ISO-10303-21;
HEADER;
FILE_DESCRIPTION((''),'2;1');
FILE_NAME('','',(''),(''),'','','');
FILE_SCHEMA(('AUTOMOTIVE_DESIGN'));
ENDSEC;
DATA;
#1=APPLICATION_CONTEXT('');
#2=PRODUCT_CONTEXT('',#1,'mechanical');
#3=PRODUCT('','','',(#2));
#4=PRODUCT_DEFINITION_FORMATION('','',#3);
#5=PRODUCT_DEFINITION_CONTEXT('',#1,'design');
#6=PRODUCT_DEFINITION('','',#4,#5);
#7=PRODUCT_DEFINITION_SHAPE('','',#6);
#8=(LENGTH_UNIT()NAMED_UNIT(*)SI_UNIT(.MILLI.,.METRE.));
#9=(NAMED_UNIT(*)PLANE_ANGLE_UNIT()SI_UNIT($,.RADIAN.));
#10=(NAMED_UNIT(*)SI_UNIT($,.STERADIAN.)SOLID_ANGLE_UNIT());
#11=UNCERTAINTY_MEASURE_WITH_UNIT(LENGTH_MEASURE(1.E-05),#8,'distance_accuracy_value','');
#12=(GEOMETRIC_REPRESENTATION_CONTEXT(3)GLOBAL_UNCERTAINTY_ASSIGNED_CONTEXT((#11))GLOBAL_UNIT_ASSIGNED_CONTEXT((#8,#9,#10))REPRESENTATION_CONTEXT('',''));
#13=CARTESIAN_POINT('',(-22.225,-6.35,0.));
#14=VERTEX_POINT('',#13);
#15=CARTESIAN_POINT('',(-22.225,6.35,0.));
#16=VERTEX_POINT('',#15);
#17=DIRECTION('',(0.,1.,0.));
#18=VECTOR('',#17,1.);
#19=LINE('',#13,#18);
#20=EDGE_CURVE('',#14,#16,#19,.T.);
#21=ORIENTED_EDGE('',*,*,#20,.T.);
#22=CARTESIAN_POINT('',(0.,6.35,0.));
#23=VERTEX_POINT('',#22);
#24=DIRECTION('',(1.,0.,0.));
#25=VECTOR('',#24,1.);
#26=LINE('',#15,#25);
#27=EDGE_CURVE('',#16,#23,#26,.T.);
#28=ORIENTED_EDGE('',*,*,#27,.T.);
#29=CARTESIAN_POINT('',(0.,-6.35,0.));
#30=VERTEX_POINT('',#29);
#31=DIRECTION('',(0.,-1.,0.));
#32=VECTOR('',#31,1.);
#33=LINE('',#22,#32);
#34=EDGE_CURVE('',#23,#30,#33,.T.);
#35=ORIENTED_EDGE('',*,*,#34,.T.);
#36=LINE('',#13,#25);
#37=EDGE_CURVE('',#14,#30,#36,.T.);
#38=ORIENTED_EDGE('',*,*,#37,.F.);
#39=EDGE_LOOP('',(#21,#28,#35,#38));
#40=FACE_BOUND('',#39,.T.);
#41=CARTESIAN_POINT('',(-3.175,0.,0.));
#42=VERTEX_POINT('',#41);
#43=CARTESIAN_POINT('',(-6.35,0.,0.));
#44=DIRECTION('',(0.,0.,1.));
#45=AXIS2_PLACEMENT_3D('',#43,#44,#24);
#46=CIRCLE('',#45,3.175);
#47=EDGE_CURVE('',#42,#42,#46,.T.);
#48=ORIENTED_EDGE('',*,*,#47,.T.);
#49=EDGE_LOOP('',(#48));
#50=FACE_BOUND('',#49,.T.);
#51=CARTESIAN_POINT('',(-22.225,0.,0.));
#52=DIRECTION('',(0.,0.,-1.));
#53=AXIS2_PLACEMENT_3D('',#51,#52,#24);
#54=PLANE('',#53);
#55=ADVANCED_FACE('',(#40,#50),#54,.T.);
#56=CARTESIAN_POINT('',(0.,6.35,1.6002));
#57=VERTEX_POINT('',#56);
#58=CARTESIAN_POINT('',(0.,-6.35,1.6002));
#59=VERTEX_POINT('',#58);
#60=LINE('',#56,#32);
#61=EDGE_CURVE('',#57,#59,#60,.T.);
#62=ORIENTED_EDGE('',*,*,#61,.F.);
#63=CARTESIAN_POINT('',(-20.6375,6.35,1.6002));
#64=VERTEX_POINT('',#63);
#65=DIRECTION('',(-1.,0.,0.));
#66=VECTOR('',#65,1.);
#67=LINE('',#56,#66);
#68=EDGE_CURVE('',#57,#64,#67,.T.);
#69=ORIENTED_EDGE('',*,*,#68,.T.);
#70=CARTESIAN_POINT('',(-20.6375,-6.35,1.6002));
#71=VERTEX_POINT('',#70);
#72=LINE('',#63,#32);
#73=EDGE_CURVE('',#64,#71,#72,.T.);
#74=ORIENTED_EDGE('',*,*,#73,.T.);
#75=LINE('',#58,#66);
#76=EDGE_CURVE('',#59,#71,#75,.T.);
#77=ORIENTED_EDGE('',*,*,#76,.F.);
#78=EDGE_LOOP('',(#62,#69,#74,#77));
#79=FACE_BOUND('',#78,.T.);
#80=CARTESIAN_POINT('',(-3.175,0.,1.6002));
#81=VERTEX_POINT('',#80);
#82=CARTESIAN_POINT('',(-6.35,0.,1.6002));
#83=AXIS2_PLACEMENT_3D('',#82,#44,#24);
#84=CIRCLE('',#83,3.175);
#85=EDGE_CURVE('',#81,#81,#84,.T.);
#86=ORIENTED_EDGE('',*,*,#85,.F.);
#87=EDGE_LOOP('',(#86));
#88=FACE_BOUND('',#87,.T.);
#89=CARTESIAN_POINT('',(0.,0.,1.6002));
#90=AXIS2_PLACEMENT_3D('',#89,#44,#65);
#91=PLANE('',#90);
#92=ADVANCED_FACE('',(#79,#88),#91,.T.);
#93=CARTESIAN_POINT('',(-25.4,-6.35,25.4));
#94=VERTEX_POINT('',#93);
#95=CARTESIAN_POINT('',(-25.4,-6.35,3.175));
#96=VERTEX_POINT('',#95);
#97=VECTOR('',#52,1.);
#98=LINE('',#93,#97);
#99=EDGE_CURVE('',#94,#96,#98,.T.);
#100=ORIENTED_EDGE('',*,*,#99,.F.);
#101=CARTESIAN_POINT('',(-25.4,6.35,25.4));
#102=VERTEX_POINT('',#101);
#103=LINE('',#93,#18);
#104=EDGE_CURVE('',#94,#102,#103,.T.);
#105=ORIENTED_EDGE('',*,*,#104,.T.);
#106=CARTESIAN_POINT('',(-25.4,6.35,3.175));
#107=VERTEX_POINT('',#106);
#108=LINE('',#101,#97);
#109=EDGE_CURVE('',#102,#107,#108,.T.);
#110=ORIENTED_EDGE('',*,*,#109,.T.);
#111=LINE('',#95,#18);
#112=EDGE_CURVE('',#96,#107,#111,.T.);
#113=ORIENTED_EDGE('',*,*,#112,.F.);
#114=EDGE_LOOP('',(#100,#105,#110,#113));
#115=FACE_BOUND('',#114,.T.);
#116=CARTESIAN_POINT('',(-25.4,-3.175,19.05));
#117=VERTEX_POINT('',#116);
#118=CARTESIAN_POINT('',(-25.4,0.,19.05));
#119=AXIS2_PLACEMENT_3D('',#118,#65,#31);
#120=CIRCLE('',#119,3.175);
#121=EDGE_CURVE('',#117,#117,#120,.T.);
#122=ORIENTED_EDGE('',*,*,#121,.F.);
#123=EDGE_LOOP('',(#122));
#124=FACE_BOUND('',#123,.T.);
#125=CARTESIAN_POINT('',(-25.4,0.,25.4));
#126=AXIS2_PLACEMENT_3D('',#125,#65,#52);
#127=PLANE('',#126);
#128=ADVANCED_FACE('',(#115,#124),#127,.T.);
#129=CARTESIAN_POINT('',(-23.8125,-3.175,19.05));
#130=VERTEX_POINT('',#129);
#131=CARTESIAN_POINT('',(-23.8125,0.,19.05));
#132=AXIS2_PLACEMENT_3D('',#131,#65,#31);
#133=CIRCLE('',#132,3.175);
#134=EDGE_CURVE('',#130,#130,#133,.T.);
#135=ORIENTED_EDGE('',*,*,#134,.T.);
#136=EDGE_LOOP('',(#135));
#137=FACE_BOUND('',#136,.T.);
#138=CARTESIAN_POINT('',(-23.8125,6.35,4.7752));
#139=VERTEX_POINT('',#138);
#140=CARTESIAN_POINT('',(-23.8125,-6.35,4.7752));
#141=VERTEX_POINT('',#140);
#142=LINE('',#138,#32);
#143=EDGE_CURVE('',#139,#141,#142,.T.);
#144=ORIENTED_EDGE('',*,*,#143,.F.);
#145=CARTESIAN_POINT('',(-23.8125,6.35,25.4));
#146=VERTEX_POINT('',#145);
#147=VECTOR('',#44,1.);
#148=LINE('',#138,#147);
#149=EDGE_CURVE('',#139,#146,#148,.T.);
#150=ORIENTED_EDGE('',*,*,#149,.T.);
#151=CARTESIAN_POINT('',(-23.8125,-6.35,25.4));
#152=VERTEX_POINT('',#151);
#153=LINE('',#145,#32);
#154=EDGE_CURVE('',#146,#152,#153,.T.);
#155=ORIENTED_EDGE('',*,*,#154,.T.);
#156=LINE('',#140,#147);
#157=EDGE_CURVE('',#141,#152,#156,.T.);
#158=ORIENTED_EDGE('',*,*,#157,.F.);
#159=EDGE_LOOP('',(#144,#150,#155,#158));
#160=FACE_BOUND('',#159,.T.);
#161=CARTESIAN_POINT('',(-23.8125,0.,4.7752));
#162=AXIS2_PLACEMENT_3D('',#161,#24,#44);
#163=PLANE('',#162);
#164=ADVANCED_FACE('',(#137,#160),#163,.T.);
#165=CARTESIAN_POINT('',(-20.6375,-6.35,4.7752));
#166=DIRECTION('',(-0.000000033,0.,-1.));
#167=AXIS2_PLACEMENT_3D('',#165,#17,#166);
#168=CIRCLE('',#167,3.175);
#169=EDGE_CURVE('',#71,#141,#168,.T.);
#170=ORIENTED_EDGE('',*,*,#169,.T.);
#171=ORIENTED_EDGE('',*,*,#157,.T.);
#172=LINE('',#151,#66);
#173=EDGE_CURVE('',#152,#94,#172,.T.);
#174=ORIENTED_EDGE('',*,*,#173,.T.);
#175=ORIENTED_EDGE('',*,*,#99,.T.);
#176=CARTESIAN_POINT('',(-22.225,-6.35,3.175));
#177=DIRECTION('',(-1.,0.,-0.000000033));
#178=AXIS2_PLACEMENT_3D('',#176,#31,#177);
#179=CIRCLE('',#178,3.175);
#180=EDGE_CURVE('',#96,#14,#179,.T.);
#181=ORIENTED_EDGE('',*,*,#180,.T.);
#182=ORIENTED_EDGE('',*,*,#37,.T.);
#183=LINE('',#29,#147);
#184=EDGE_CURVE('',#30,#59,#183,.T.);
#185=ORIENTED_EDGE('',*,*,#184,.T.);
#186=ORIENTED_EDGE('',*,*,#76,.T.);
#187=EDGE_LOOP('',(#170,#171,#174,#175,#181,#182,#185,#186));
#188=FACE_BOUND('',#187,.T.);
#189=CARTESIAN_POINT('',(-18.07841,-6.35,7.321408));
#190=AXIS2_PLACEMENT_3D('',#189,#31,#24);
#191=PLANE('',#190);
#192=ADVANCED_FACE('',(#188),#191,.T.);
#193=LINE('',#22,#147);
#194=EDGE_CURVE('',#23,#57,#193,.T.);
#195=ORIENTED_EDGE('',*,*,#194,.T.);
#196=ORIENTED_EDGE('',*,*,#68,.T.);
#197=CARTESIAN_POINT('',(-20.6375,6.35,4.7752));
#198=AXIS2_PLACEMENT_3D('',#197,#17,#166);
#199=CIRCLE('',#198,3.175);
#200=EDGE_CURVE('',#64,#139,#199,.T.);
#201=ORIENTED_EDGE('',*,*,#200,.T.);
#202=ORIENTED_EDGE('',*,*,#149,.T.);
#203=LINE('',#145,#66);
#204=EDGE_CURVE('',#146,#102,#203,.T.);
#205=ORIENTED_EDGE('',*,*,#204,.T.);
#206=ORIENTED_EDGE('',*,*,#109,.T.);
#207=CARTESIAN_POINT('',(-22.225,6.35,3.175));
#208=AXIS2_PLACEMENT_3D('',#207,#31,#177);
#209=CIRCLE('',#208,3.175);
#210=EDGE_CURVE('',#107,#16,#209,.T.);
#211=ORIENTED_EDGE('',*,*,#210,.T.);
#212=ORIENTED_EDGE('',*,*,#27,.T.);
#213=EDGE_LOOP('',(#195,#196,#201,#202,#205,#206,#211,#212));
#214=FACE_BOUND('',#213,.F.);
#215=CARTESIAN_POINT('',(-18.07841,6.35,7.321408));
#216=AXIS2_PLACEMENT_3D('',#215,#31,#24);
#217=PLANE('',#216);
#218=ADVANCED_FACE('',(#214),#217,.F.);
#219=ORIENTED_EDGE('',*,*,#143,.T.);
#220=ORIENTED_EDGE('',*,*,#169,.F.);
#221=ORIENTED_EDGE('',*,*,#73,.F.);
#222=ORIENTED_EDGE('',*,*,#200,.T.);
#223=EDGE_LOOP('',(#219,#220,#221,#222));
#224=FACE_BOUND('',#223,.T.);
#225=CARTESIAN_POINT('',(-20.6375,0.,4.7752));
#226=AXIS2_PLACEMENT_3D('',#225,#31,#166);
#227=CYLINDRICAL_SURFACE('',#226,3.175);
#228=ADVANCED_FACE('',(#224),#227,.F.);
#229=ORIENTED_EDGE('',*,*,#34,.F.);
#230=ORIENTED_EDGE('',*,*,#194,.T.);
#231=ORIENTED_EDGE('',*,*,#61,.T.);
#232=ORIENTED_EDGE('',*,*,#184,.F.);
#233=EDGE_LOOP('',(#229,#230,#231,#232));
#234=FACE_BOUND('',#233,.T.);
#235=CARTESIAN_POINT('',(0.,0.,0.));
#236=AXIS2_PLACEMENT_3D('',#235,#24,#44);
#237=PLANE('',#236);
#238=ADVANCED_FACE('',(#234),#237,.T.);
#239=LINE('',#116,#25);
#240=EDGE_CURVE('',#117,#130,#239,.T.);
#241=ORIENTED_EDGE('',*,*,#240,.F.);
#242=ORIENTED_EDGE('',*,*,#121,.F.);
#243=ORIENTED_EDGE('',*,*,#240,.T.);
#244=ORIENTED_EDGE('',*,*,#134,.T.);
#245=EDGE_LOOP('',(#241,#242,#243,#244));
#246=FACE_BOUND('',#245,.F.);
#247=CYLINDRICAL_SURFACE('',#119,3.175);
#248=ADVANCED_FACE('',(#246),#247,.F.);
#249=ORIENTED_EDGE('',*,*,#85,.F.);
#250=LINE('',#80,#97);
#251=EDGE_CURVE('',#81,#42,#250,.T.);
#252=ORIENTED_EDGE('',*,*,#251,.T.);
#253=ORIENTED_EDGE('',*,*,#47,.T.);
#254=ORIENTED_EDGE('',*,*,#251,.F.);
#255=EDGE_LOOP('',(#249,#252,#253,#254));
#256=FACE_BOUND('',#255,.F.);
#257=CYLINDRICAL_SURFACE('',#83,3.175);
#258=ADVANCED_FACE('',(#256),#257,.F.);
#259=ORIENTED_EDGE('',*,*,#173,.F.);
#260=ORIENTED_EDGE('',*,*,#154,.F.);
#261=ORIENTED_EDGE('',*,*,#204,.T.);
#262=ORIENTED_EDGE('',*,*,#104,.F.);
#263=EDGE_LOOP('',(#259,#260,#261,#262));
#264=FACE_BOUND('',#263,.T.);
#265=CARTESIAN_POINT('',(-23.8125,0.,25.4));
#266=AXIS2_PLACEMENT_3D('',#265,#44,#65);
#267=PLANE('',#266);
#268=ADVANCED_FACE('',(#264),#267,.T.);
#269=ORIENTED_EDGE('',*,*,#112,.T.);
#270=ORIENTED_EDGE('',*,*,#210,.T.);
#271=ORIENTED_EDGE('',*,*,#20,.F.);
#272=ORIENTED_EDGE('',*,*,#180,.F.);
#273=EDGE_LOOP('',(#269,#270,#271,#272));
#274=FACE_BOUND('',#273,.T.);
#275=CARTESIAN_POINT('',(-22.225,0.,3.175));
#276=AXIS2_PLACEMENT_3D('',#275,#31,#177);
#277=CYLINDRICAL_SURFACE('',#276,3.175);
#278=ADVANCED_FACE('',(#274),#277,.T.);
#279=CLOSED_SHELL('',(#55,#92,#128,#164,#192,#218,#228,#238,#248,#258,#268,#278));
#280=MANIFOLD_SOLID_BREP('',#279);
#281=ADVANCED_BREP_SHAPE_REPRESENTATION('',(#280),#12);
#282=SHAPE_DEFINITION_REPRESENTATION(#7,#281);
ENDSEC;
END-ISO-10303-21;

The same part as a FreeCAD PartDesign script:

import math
import FreeCAD as App
import Part
import Sketcher
from FreeCAD import Vector
Q = App.Units.Quantity

doc = App.newDocument("Part")
body = doc.addObject("PartDesign::Body", "Body")

sketch1 = body.newObject("Sketcher::SketchObject", "Sketch")
sketch1.AttachmentSupport = (doc.getObject("XZ_Plane"), [""])
sketch1.MapMode = "FlatFace"
sketch1.addGeometry(Part.LineSegment(Vector(-22.2, 0, 0), Vector(0, 0, 0)), False)
sketch1.addGeometry(Part.LineSegment(Vector(0, 0, 0), Vector(0, 1.6, 0)), False)
sketch1.addGeometry(Part.LineSegment(Vector(0, 1.6, 0), Vector(-20.6, 1.6, 0)), False)
sketch1.addGeometry(Part.ArcOfCircle(Part.Circle(Vector(-20.6, 4.8, 0), Vector(0, 0, 1), 3.2), math.radians(-180), math.radians(-90)), False)
sketch1.addGeometry(Part.LineSegment(Vector(-23.8, 4.8, 0), Vector(-23.8, 25.4, 0)), False)
sketch1.addGeometry(Part.LineSegment(Vector(-23.8, 25.4, 0), Vector(-25.4, 25.4, 0)), False)
sketch1.addGeometry(Part.LineSegment(Vector(-25.4, 25.4, 0), Vector(-25.4, 3.2, 0)), False)
sketch1.addGeometry(Part.ArcOfCircle(Part.Circle(Vector(-22.2, 3.2, 0), Vector(0, 0, 1), 3.2), math.radians(-180), math.radians(-90)), False)
sketch1.addConstraint(Sketcher.Constraint("Coincident", 0, 2, 1, 1))
sketch1.addConstraint(Sketcher.Constraint("Coincident", 1, 2, 2, 1))
sketch1.addConstraint(Sketcher.Constraint("Tangent", 2, 2, 3, 2))
sketch1.addConstraint(Sketcher.Constraint("Tangent", 3, 1, 4, 1))
sketch1.addConstraint(Sketcher.Constraint("Coincident", 4, 2, 5, 1))
sketch1.addConstraint(Sketcher.Constraint("Coincident", 5, 2, 6, 1))
sketch1.addConstraint(Sketcher.Constraint("Tangent", 6, 2, 7, 1))
sketch1.addConstraint(Sketcher.Constraint("Tangent", 7, 2, 0, 1))
sketch1.addConstraint(Sketcher.Constraint("Horizontal", 0))
sketch1.addConstraint(Sketcher.Constraint("Vertical", 1))
sketch1.addConstraint(Sketcher.Constraint("Horizontal", 2))
sketch1.addConstraint(Sketcher.Constraint("Vertical", 4))
sketch1.addConstraint(Sketcher.Constraint("Horizontal", 5))
sketch1.addConstraint(Sketcher.Constraint("Vertical", 6))
sketch1.addConstraint(Sketcher.Constraint("Coincident", 0, 2, -1, 1))
sketch1.addConstraint(Sketcher.Constraint("Equal", 3, 7))
sketch1.addConstraint(Sketcher.Constraint("Equal", 0, 6))
sketch1.addConstraint(Sketcher.Constraint("DistanceY", -1, 1, 4, 2, Q("1 in")))
sketch1.addConstraint(Sketcher.Constraint("Radius", 3, Q("0.125 in")))
sketch1.addConstraint(Sketcher.Constraint("DistanceX", 2, 2, 2, 1, Q("0.8125 in")))
sketch1.addConstraint(Sketcher.Constraint("DistanceY", 1, 1, 1, 2, Q("0.063 in")))
pad1 = body.newObject("PartDesign::Pad", "Pad")
pad1.Profile = sketch1
pad1.Length = Q("0.5 in")
pad1.Midplane = True

sketch2 = body.newObject("Sketcher::SketchObject", "Sketch001")
sketch2.AttachmentSupport = (doc.getObject("YZ_Plane"), [""])
sketch2.MapMode = "FlatFace"
sketch2.AttachmentOffset = App.Placement(Vector(0, 0, -1 * 25.4), App.Rotation())
sketch2.addGeometry(Part.Circle(Vector(0, 19.1, 0), Vector(0, 0, 1), 3.2), False)
sketch2.addConstraint(Sketcher.Constraint("PointOnObject", 0, 3, -2))
sketch2.addConstraint(Sketcher.Constraint("Diameter", 0, Q("0.25 in")))
sketch2.addConstraint(Sketcher.Constraint("DistanceY", -1, 1, 0, 3, Q("0.75 in")))
pocket1 = body.newObject("PartDesign::Pocket", "Pocket")
pocket1.Profile = sketch2
pocket1.Length = Q("0.2 in")
pocket1.Reversed = True

sketch3 = body.newObject("Sketcher::SketchObject", "Sketch002")
sketch3.AttachmentSupport = (doc.getObject("XY_Plane"), [""])
sketch3.MapMode = "FlatFace"
sketch3.AttachmentOffset = App.Placement(Vector(0, 0, 0.063 * 25.4), App.Rotation())
sketch3.addGeometry(Part.Circle(Vector(-6.3, 0, 0), Vector(0, 0, 1), 3.2), False)
sketch3.addConstraint(Sketcher.Constraint("PointOnObject", 0, 3, -1))
sketch3.addConstraint(Sketcher.Constraint("Diameter", 0, Q("0.25 in")))
sketch3.addConstraint(Sketcher.Constraint("DistanceX", 0, 3, -1, 1, Q("0.25 in")))
pocket2 = body.newObject("PartDesign::Pocket", "Pocket001")
pocket2.Profile = sketch3
pocket2.Length = Q("0.2 in")

doc.recompute()
